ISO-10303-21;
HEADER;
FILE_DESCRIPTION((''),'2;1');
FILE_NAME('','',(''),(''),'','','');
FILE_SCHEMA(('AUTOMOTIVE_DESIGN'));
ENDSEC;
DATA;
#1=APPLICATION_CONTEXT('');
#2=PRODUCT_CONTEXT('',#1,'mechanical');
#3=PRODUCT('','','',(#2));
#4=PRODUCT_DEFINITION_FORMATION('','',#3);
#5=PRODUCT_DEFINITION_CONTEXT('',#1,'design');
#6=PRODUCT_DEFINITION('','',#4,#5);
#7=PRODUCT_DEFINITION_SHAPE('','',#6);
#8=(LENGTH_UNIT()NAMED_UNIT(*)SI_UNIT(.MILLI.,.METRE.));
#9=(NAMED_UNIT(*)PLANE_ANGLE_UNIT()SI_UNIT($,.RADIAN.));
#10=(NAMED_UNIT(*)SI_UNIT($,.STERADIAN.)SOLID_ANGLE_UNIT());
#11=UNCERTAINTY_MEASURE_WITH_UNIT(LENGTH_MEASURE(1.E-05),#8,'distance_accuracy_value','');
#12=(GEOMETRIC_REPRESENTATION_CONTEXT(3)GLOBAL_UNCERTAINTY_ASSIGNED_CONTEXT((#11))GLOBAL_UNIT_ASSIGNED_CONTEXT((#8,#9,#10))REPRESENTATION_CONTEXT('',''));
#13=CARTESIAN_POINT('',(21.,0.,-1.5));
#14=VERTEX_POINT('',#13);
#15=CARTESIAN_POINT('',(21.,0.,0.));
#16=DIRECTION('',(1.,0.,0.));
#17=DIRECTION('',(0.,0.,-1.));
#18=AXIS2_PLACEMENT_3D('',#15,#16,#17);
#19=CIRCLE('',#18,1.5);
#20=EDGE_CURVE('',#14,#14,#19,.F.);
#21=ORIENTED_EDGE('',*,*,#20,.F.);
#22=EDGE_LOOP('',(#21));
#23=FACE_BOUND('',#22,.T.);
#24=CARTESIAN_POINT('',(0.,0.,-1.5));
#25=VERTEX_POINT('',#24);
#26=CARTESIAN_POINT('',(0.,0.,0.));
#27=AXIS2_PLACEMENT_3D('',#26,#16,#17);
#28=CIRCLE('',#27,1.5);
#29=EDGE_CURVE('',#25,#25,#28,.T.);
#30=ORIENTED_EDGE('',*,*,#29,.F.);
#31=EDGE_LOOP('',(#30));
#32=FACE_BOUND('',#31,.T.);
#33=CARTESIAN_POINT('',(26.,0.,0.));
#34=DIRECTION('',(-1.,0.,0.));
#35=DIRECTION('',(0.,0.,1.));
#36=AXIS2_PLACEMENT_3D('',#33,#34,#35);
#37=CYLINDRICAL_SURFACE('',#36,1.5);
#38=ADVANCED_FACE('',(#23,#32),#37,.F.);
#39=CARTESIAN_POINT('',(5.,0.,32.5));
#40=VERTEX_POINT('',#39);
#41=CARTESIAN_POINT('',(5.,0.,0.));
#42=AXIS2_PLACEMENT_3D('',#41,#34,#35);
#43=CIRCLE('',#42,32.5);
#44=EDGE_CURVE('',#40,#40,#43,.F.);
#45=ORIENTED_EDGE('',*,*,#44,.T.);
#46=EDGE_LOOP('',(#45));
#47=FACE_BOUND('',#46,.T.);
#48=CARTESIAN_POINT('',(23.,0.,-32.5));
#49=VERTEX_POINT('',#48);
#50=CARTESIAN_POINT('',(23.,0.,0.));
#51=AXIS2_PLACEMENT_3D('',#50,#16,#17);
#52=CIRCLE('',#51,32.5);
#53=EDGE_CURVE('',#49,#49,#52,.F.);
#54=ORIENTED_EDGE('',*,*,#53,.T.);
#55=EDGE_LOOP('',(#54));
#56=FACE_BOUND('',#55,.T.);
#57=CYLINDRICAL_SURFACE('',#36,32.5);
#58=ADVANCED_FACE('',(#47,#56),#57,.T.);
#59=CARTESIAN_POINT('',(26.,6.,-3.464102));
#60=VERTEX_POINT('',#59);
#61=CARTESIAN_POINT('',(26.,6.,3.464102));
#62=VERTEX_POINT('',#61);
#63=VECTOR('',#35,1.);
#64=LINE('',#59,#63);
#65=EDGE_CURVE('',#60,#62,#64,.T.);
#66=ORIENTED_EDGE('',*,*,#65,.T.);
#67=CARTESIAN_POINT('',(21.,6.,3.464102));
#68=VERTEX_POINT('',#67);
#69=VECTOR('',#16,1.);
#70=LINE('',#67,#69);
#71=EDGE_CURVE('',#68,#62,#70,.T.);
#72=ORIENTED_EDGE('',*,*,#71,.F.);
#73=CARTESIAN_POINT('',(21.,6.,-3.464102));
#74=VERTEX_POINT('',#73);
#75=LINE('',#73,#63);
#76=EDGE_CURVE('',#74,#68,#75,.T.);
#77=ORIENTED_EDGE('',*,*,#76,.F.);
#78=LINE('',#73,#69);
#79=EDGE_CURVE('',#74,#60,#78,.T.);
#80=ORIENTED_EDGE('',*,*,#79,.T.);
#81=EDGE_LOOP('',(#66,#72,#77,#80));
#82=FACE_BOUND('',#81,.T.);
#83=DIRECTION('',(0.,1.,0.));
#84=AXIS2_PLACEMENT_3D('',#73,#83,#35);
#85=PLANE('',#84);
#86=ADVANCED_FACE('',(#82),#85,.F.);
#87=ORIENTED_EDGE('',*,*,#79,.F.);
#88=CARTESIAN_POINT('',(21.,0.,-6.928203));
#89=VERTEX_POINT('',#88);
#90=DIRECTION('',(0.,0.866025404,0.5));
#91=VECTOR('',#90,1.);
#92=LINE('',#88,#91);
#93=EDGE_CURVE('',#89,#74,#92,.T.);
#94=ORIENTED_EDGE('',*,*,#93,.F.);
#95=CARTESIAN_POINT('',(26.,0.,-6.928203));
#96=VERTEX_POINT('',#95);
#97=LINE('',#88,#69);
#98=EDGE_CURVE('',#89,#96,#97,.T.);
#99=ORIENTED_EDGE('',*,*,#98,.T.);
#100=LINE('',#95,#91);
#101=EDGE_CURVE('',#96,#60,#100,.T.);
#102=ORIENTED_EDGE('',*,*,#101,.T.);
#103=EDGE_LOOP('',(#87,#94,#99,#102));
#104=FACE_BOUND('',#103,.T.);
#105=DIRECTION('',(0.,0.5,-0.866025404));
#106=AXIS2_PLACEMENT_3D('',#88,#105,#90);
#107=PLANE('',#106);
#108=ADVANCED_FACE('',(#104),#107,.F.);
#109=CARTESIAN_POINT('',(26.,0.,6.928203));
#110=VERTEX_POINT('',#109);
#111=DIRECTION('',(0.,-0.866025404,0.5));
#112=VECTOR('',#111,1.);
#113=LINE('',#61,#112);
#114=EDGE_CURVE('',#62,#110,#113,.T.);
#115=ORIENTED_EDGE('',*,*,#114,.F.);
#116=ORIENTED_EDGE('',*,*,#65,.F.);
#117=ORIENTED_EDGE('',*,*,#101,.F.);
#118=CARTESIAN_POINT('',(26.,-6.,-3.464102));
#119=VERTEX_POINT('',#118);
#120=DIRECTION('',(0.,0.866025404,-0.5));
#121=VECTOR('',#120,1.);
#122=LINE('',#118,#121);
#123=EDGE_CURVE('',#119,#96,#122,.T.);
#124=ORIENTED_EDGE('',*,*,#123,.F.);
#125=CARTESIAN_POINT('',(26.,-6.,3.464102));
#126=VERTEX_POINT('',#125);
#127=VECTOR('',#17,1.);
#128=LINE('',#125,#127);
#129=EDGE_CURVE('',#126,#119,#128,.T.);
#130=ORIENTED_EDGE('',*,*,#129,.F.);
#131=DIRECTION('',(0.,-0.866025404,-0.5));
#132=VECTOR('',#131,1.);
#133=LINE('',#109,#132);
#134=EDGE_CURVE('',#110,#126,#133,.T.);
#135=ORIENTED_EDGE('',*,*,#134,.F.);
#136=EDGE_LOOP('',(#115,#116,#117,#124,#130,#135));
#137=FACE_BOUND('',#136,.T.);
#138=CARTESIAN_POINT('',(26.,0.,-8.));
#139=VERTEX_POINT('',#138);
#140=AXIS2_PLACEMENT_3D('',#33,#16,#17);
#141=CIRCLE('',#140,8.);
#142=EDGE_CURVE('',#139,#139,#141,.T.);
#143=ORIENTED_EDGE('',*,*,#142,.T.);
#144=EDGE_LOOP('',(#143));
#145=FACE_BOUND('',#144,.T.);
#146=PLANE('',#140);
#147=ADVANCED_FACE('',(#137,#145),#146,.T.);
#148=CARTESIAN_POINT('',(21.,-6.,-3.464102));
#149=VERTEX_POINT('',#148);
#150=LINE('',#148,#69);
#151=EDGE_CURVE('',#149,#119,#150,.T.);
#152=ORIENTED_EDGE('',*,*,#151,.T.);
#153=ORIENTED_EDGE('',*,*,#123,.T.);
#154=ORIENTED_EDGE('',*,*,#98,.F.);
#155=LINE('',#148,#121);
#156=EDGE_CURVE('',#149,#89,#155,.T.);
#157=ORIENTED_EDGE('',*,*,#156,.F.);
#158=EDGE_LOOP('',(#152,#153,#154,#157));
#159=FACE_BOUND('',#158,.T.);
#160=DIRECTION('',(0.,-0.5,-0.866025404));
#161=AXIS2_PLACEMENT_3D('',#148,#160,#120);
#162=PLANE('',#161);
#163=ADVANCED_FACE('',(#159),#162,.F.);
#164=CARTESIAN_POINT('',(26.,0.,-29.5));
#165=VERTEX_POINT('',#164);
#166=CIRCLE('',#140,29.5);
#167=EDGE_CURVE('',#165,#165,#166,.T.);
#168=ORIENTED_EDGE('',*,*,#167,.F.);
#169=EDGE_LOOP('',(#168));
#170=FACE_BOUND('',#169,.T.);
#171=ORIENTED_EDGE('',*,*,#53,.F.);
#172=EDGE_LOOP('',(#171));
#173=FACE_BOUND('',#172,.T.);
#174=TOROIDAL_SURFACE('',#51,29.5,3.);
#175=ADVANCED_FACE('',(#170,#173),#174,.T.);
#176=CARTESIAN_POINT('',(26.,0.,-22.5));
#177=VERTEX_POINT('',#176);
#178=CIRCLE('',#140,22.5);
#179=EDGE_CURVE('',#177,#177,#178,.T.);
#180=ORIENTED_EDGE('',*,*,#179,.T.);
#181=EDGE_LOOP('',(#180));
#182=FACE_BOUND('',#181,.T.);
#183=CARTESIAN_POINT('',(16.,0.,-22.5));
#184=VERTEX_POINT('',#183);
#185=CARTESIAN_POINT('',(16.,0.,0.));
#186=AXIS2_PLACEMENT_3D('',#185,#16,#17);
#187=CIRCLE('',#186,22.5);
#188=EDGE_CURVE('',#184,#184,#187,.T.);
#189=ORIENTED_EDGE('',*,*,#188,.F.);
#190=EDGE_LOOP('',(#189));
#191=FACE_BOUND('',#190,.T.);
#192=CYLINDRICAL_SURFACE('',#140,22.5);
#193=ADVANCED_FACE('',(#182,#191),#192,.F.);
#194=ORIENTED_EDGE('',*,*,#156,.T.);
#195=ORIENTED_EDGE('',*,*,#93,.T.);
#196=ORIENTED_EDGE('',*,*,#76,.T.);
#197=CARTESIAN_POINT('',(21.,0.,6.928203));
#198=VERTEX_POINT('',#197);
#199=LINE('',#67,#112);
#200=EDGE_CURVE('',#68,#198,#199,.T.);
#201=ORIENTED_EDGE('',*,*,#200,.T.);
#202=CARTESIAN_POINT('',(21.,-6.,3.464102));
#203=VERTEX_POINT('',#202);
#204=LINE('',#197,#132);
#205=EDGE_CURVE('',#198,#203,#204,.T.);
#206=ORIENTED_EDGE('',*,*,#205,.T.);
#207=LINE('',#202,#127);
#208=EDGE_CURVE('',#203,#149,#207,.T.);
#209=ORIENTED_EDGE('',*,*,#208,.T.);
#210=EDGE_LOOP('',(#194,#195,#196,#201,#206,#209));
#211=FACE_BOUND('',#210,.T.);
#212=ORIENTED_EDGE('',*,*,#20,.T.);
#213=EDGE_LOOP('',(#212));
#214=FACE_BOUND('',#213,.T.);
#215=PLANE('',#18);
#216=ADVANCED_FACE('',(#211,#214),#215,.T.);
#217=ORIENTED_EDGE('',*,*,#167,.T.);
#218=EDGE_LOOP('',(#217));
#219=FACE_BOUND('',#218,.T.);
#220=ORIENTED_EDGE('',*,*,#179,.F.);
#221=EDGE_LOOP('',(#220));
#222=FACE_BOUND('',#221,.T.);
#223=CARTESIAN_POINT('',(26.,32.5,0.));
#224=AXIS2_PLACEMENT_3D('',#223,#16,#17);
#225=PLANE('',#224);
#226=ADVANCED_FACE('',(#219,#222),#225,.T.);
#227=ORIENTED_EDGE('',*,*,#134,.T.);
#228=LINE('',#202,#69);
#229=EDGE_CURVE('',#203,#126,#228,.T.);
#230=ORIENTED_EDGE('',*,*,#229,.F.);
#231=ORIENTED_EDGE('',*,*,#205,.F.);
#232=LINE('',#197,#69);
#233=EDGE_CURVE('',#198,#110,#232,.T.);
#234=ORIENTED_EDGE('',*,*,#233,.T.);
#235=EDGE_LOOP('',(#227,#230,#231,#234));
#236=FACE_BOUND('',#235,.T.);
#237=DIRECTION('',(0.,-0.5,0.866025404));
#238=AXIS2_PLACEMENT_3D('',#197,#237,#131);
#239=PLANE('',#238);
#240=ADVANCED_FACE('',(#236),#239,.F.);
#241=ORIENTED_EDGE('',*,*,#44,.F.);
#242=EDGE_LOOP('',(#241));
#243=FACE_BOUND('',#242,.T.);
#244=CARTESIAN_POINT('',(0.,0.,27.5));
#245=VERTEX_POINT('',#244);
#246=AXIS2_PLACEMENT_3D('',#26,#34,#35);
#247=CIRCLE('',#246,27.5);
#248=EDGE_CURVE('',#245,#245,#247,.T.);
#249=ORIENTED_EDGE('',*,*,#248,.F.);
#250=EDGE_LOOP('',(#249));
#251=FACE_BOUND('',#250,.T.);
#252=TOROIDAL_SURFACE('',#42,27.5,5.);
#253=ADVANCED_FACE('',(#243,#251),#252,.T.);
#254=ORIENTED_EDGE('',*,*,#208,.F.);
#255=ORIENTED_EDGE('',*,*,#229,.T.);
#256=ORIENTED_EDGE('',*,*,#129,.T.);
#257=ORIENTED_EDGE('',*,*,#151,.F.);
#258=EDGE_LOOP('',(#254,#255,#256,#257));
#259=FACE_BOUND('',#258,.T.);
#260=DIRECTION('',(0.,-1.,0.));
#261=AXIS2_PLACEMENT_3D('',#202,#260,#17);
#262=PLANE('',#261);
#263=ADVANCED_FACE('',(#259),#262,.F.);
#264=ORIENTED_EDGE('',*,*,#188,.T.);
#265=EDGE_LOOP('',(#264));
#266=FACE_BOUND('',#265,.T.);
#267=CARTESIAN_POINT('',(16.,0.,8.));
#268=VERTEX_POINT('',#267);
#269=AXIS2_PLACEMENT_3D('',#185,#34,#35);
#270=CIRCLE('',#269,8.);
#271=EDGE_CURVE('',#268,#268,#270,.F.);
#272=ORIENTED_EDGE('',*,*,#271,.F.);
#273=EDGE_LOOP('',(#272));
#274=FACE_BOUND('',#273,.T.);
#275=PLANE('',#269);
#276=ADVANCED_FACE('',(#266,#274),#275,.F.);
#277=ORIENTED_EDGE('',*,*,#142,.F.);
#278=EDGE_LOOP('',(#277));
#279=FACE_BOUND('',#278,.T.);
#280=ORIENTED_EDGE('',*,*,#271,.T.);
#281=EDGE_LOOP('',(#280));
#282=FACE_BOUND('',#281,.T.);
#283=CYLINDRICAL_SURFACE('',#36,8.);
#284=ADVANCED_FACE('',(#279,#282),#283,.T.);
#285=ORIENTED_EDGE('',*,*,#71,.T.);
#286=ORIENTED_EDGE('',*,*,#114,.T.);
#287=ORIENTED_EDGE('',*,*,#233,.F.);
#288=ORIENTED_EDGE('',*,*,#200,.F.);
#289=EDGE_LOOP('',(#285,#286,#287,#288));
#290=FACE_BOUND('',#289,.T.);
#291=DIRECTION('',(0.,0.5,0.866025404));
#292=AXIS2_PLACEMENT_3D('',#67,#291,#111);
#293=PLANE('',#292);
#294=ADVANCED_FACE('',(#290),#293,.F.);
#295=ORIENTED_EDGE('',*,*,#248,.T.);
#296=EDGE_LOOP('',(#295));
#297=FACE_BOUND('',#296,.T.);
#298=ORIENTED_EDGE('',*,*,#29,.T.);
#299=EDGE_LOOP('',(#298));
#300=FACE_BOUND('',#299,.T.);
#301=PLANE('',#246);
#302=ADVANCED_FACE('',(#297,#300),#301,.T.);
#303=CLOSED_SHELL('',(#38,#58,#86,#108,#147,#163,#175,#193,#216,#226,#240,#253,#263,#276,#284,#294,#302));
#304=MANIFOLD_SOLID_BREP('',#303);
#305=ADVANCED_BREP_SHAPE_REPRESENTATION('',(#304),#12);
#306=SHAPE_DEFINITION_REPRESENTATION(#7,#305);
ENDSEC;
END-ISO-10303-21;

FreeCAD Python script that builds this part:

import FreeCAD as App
import Part
import Sketcher

V = App.Vector
Q = App.Units.Quantity


def edges_at(feature, points):
    """Names of the edges that pass closest to the given points."""
    edges = feature.Shape.Edges
    near = lambda p: min(range(len(edges)), key=lambda i: edges[i].distToShape(Part.Vertex(*p))[0])
    return sorted({f"Edge{near(p) + 1}" for p in points})


def add_polygon(sketch, points):
    """Adds a closed chain of lines whose ends are joined by coincident constraints."""
    first, n = sketch.GeometryCount, len(points)
    for a, b in zip(points, points[1:] + points[:1]):
        sketch.addGeometry(Part.LineSegment(App.Vector(*a, 0), App.Vector(*b, 0)), False)
    for i in range(n):
        sketch.addConstraint(Sketcher.Constraint("Coincident", first + i, 2, first + (i + 1) % n, 1))

doc = App.newDocument("Part")
params = doc.addObject("Spreadsheet::Sheet", "Params")
for row, (alias, value) in enumerate([
    ("sketch1_width", "26 mm"),
    ("sketch1_height", "32.5 mm"),
    ("revolution_angle", "360 deg"),
    ("sketch2_diameter", "45 mm"),
    ("hole_diameter", "45 mm"),
    ("hole_depth", "10 mm"),
    ("sketch3_diameter", "16 mm"),
    ("pad1_length", "10 mm"),
    ("pocket1_length", "5 mm"),
    ("sketch5_diameter", "3 mm"),
    ("fillet_radius", "5 mm"),
    ("fillet2_radius", "3 mm"),
], start=1):
    params.set(f"A{row}", alias)
    params.set(f"B{row}", "=" + value)
    params.setAlias(f"B{row}", alias)

body = doc.addObject("PartDesign::Body", "Body")

# Sketch on XY plane
sketch1 = doc.addObject("Sketcher::SketchObject", "Sketch")
body.addObject(sketch1)
sketch1.AttachmentSupport = (doc.XY_Plane, [""])
sketch1.MapMode = "FlatFace"
add_polygon(sketch1, [(26, 32), (26, 0), (0, 0), (0, 32)])  # lines 0-3
sketch1.addConstraint(Sketcher.Constraint("Vertical", 0))
sketch1.addConstraint(Sketcher.Constraint("Horizontal", 1))
sketch1.addConstraint(Sketcher.Constraint("Vertical", 2))
sketch1.addConstraint(Sketcher.Constraint("Horizontal", 3))
sketch1.addConstraint(Sketcher.Constraint("Coincident", 1, 2, -1, 1))
sketch1.addConstraint(Sketcher.Constraint("DistanceX", 1, 2, 1, 1, Q("26 mm")))
sketch1.addConstraint(Sketcher.Constraint("DistanceY", 0, 2, 0, 1, Q("32.5 mm")))
sketch1.setExpression("Constraints[9]", "Params.sketch1_width")
sketch1.setExpression("Constraints[10]", "Params.sketch1_height")
revolution = doc.addObject("PartDesign::Revolution", "Revolution")
body.addObject(revolution)
revolution.Profile = sketch1
revolution.ReferenceAxis = (sketch1, ["H_Axis"])
revolution.setExpression("Angle", "Params.revolution_angle")

# Sketch on YZ plane
sketch2 = doc.addObject("Sketcher::SketchObject", "Sketch001")
body.addObject(sketch2)
sketch2.AttachmentSupport = (doc.YZ_Plane, [""])
sketch2.MapMode = "FlatFace"
sketch2.AttachmentOffset = App.Placement(V(0, 0, 26), App.Rotation())
sketch2.addGeometry(Part.Circle(V(0, 0, 0), V(0, 0, 1), 22), False)
sketch2.addConstraint(Sketcher.Constraint("Coincident", 0, 3, -1, 1))
sketch2.addConstraint(Sketcher.Constraint("Diameter", 0, Q("45 mm")))
sketch2.setExpression("Constraints[1]", "Params.sketch2_diameter")
doc.recompute()
hole = doc.addObject("PartDesign::Hole", "Hole")
body.addObject(hole)
hole.Profile = sketch2
hole.ThreadType = "None"
hole.setExpression("Diameter", "Params.hole_diameter")
hole.DepthType = "Dimension"
hole.setExpression("Depth", "Params.hole_depth")
hole.DrillPoint = "Flat"

# Sketch on YZ plane
sketch3 = doc.addObject("Sketcher::SketchObject", "Sketch002")
body.addObject(sketch3)
sketch3.AttachmentSupport = (doc.YZ_Plane, [""])
sketch3.MapMode = "FlatFace"
sketch3.AttachmentOffset = App.Placement(V(0, 0, 16), App.Rotation())
sketch3.addGeometry(Part.Circle(V(0, 0, 0), V(0, 0, 1), 8), False)
sketch3.addConstraint(Sketcher.Constraint("Coincident", 0, 3, -1, 1))
sketch3.addConstraint(Sketcher.Constraint("Diameter", 0, Q("16 mm")))
sketch3.setExpression("Constraints[1]", "Params.sketch3_diameter")
pad1 = doc.addObject("PartDesign::Pad", "Pad")
body.addObject(pad1)
pad1.Profile = sketch3
pad1.setExpression("Length", "Params.pad1_length")

# Sketch on YZ plane
sketch4 = doc.addObject("Sketcher::SketchObject", "Sketch003")
body.addObject(sketch4)
sketch4.AttachmentSupport = (doc.YZ_Plane, [""])
sketch4.MapMode = "FlatFace"
sketch4.AttachmentOffset = App.Placement(V(0, 0, 26), App.Rotation())
add_polygon(sketch4, [(-6, -3), (0, -7), (6, -3), (6, 3), (0, 7), (-6, 3)])  # lines 0-5
sketch4.addConstraint(Sketcher.Constraint("Vertical", 2))
sketch4.addConstraint(Sketcher.Constraint("Vertical", 5))
sketch4.addConstraint(Sketcher.Constraint("Symmetric", 0, 2, 3, 2, -1, 1))
sketch4.addConstraint(Sketcher.Constraint("Symmetric", 1, 2, 4, 2, -1, 1))
sketch4.addConstraint(Sketcher.Constraint("PointOnObject", 0, 2, -2))
sketch4.addConstraint(Sketcher.Constraint("Parallel", 0, 3))
sketch4.addConstraint(Sketcher.Constraint("Horizontal", 2, 2, 4, 2))
sketch4.addConstraint(Sketcher.Constraint("Angle", 0, Q("-30 deg")))
sketch4.addConstraint(Sketcher.Constraint("DistanceX", -1, 1, 1, 2, Q("6 mm")))
sketch4.addConstraint(Sketcher.Constraint("DistanceY", 1, 2, -1, 1, Q("3.464102 mm")))
pocket1 = doc.addObject("PartDesign::Pocket", "Pocket")
body.addObject(pocket1)
pocket1.Profile = sketch4
pocket1.setExpression("Length", "Params.pocket1_length")

# Sketch on YZ plane
sketch5 = doc.addObject("Sketcher::SketchObject", "Sketch004")
body.addObject(sketch5)
sketch5.AttachmentSupport = (doc.YZ_Plane, [""])
sketch5.MapMode = "FlatFace"
sketch5.addGeometry(Part.Circle(V(0, 0, 0), V(0, 0, 1), 1.5), False)
sketch5.addConstraint(Sketcher.Constraint("Coincident", 0, 3, -1, 1))
sketch5.addConstraint(Sketcher.Constraint("Diameter", 0, Q("3 mm")))
sketch5.setExpression("Constraints[1]", "Params.sketch5_diameter")
pocket2 = doc.addObject("PartDesign::Pocket", "Pocket001")
body.addObject(pocket2)
pocket2.Profile = sketch5
pocket2.Type = "ThroughAll"
pocket2.Reversed = True
doc.recompute()

fillet = doc.addObject("PartDesign::Fillet", "Fillet")
body.addObject(fillet)
fillet.Base = (pocket2, edges_at(pocket2, [(0, 0, -32.5)]))
fillet.setExpression("Radius", "Params.fillet_radius")
doc.recompute()

fillet2 = doc.addObject("PartDesign::Fillet", "Fillet001")
body.addObject(fillet2)
fillet2.Base = (fillet, edges_at(fillet, [(26, 0, -32.5)]))
fillet2.setExpression("Radius", "Params.fillet2_radius")

doc.recompute()
